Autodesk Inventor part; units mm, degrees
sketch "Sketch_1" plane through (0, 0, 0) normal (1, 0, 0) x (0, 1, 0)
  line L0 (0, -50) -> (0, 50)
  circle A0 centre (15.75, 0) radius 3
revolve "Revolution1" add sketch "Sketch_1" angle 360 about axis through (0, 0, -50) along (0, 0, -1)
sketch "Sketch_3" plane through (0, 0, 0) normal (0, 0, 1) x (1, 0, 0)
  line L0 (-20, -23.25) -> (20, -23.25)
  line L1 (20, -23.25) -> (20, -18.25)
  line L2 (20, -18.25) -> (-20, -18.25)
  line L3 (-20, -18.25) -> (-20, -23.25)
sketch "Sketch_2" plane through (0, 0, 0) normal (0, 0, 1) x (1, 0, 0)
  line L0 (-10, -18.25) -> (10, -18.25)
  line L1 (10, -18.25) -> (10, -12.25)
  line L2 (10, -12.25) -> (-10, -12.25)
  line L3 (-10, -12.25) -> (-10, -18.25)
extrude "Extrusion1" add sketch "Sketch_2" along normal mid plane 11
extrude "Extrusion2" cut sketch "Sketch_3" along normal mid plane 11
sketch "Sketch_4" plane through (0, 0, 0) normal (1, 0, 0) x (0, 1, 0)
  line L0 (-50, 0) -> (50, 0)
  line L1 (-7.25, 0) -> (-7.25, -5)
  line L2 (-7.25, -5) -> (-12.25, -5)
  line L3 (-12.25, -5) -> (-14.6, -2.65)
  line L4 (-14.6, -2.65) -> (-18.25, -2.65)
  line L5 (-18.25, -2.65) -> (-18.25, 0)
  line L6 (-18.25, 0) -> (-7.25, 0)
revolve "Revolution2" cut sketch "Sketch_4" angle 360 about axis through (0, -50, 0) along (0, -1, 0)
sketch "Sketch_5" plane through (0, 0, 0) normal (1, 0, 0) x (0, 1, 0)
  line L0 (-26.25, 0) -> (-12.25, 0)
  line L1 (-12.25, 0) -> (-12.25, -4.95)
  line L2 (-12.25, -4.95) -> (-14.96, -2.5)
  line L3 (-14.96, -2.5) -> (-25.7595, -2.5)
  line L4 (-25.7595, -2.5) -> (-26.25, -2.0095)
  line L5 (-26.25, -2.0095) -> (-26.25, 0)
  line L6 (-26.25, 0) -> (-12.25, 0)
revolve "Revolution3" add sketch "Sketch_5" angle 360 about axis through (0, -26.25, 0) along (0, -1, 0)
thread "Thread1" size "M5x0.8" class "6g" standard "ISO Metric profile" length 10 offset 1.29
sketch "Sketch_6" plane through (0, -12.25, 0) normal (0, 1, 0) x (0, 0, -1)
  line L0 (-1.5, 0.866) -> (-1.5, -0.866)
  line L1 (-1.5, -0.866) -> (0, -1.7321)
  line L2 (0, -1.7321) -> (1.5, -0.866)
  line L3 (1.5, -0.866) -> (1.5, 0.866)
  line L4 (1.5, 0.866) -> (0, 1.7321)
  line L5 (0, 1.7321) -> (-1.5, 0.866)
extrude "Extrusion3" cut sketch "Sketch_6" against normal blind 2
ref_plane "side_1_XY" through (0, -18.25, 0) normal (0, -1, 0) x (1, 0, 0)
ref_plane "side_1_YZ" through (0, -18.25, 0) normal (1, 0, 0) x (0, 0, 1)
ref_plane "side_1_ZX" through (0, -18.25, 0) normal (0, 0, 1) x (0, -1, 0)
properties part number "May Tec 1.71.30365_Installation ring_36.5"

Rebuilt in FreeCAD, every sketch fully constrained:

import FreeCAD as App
import Part
import Sketcher
Q = App.Units.Quantity

doc = App.newDocument("Part")
body = doc.addObject("PartDesign::Body", "Body")

# Sketch on YZ plane
sketch1 = body.newObject("Sketcher::SketchObject", "Sketch")
sketch1.AttachmentSupport = (doc.getObject("YZ_Plane"), [""])
sketch1.MapMode = "FlatFace"
sketch1.addGeometry(Part.Circle(App.Vector(15.75, 0, 0), App.Vector(0, 0, 1), 3), False)
sketch1.addConstraint(Sketcher.Constraint("PointOnObject", 0, 3, -1))
sketch1.addConstraint(Sketcher.Constraint("Diameter", 0, 6.0))
sketch1.addConstraint(Sketcher.Constraint("DistanceX", -1, 1, 0, 3, 15.75))
revolution = body.newObject("PartDesign::Revolution", "Revolution")
revolution.Profile = sketch1
revolution.ReferenceAxis = (sketch1, ["V_Axis"])
revolution.Angle = 360

# Sketch on XY plane
sketch2 = body.newObject("Sketcher::SketchObject", "Sketch001")
sketch2.AttachmentSupport = (doc.getObject("XY_Plane"), [""])
sketch2.MapMode = "FlatFace"
sketch2.addGeometry(Part.LineSegment(App.Vector(-10, -12.25, 0), App.Vector(-10, -18.25, 0)), False)
sketch2.addGeometry(Part.LineSegment(App.Vector(-10, -18.25, 0), App.Vector(10, -18.25, 0)), False)
sketch2.addGeometry(Part.LineSegment(App.Vector(10, -18.25, 0), App.Vector(10, -12.25, 0)), False)
sketch2.addGeometry(Part.LineSegment(App.Vector(10, -12.25, 0), App.Vector(-10, -12.25, 0)), False)
sketch2.addConstraint(Sketcher.Constraint("Coincident", 0, 2, 1, 1))
sketch2.addConstraint(Sketcher.Constraint("Coincident", 1, 2, 2, 1))
sketch2.addConstraint(Sketcher.Constraint("Coincident", 2, 2, 3, 1))
sketch2.addConstraint(Sketcher.Constraint("Coincident", 3, 2, 0, 1))
sketch2.addConstraint(Sketcher.Constraint("Vertical", 0))
sketch2.addConstraint(Sketcher.Constraint("Horizontal", 1))
sketch2.addConstraint(Sketcher.Constraint("Vertical", 2))
sketch2.addConstraint(Sketcher.Constraint("Horizontal", 3))
sketch2.addConstraint(Sketcher.Constraint("DistanceX", 1, 1, 1, 2, 20.0))
sketch2.addConstraint(Sketcher.Constraint("DistanceY", 0, 2, 0, 1, 6.0))
sketch2.addConstraint(Sketcher.Constraint("DistanceX", 0, 2, -1, 1, 10.0))
sketch2.addConstraint(Sketcher.Constraint("DistanceY", 0, 2, -1, 1, 18.25))
pad1 = body.newObject("PartDesign::Pad", "Pad")
pad1.Profile = sketch2
pad1.Length = 11
pad1.Midplane = True

# Sketch on XY plane
sketch3 = body.newObject("Sketcher::SketchObject", "Sketch002")
sketch3.AttachmentSupport = (doc.getObject("XY_Plane"), [""])
sketch3.MapMode = "FlatFace"
sketch3.addGeometry(Part.LineSegment(App.Vector(-20, -18.25, 0), App.Vector(-20, -23.25, 0)), False)
sketch3.addGeometry(Part.LineSegment(App.Vector(-20, -23.25, 0), App.Vector(20, -23.25, 0)), False)
sketch3.addGeometry(Part.LineSegment(App.Vector(20, -23.25, 0), App.Vector(20, -18.25, 0)), False)
sketch3.addGeometry(Part.LineSegment(App.Vector(20, -18.25, 0), App.Vector(-20, -18.25, 0)), False)
sketch3.addConstraint(Sketcher.Constraint("Coincident", 0, 2, 1, 1))
sketch3.addConstraint(Sketcher.Constraint("Coincident", 1, 2, 2, 1))
sketch3.addConstraint(Sketcher.Constraint("Coincident", 2, 2, 3, 1))
sketch3.addConstraint(Sketcher.Constraint("Coincident", 3, 2, 0, 1))
sketch3.addConstraint(Sketcher.Constraint("Vertical", 0))
sketch3.addConstraint(Sketcher.Constraint("Horizontal", 1))
sketch3.addConstraint(Sketcher.Constraint("Vertical", 2))
sketch3.addConstraint(Sketcher.Constraint("Horizontal", 3))
sketch3.addConstraint(Sketcher.Constraint("DistanceX", 1, 1, 1, 2, 40.0))
sketch3.addConstraint(Sketcher.Constraint("DistanceY", 0, 2, 0, 1, 5.0))
sketch3.addConstraint(Sketcher.Constraint("DistanceX", 0, 2, -1, 1, 20.0))
sketch3.addConstraint(Sketcher.Constraint("DistanceY", 0, 2, -1, 1, 23.25))
pocket1 = body.newObject("PartDesign::Pocket", "Pocket")
pocket1.Profile = sketch3
pocket1.Length = 11
pocket1.Midplane = True

# Sketch on YZ plane
sketch4 = body.newObject("Sketcher::SketchObject", "Sketch003")
sketch4.AttachmentSupport = (doc.getObject("YZ_Plane"), [""])
sketch4.MapMode = "FlatFace"
sketch4.addGeometry(Part.LineSegment(App.Vector(-7.25, 0, 0), App.Vector(-18.25, 0, 0)), False)
sketch4.addGeometry(Part.LineSegment(App.Vector(-18.25, 0, 0), App.Vector(-18.25, -2.65, 0)), False)
sketch4.addGeometry(Part.LineSegment(App.Vector(-18.25, -2.65, 0), App.Vector(-14.6, -2.65, 0)), False)
sketch4.addGeometry(Part.LineSegment(App.Vector(-14.6, -2.65, 0), App.Vector(-12.25, -5, 0)), False)
sketch4.addGeometry(Part.LineSegment(App.Vector(-12.25, -5, 0), App.Vector(-7.25, -5, 0)), False)
sketch4.addGeometry(Part.LineSegment(App.Vector(-7.25, -5, 0), App.Vector(-7.25, 0, 0)), False)
sketch4.addConstraint(Sketcher.Constraint("Coincident", 0, 2, 1, 1))
sketch4.addConstraint(Sketcher.Constraint("Coincident", 1, 2, 2, 1))
sketch4.addConstraint(Sketcher.Constraint("Coincident", 2, 2, 3, 1))
sketch4.addConstraint(Sketcher.Constraint("Coincident", 3, 2, 4, 1))
sketch4.addConstraint(Sketcher.Constraint("Coincident", 4, 2, 5, 1))
sketch4.addConstraint(Sketcher.Constraint("Coincident", 5, 2, 0, 1))
sketch4.addConstraint(Sketcher.Constraint("Horizontal", 0))
sketch4.addConstraint(Sketcher.Constraint("Vertical", 1))
sketch4.addConstraint(Sketcher.Constraint("Horizontal", 2))
sketch4.addConstraint(Sketcher.Constraint("Horizontal", 4))
sketch4.addConstraint(Sketcher.Constraint("Vertical", 5))
sketch4.addConstraint(Sketcher.Constraint("PointOnObject", 0, 2, -1))
sketch4.addConstraint(Sketcher.Constraint("Equal", 4, 5))
sketch4.addConstraint(Sketcher.Constraint("DistanceX", 0, 2, 0, 1, 11.0))
sketch4.addConstraint(Sketcher.Constraint("DistanceX", 4, 1, 4, 2, 5.0))
sketch4.addConstraint(Sketcher.Constraint("Angle", 3, Q("-45 deg")))
sketch4.addConstraint(Sketcher.Constraint("DistanceX", 2, 1, 2, 2, 3.65))
sketch4.addConstraint(Sketcher.Constraint("DistanceX", 2, 2, -1, 1, 14.6))
groove = body.newObject("PartDesign::Groove", "Groove")
groove.Profile = sketch4
groove.ReferenceAxis = (sketch4, ["H_Axis"])
groove.Angle = 360

# Sketch on YZ plane
sketch5 = body.newObject("Sketcher::SketchObject", "Sketch004")
sketch5.AttachmentSupport = (doc.getObject("YZ_Plane"), [""])
sketch5.MapMode = "FlatFace"
sketch5.addGeometry(Part.LineSegment(App.Vector(-12.25, 0, 0), App.Vector(-26.25, 0, 0)), False)
sketch5.addGeometry(Part.LineSegment(App.Vector(-26.25, 0, 0), App.Vector(-26.25, -2.0095, 0)), False)
sketch5.addGeometry(Part.LineSegment(App.Vector(-26.25, -2.0095, 0), App.Vector(-25.7595, -2.5, 0)), False)
sketch5.addGeometry(Part.LineSegment(App.Vector(-25.7595, -2.5, 0), App.Vector(-14.96, -2.5, 0)), False)
sketch5.addGeometry(Part.LineSegment(App.Vector(-14.96, -2.5, 0), App.Vector(-12.25, -4.95, 0)), False)
sketch5.addGeometry(Part.LineSegment(App.Vector(-12.25, -4.95, 0), App.Vector(-12.25, 0, 0)), False)
sketch5.addConstraint(Sketcher.Constraint("Coincident", 0, 2, 1, 1))
sketch5.addConstraint(Sketcher.Constraint("Coincident", 1, 2, 2, 1))
sketch5.addConstraint(Sketcher.Constraint("Coincident", 2, 2, 3, 1))
sketch5.addConstraint(Sketcher.Constraint("Coincident", 3, 2, 4, 1))
sketch5.addConstraint(Sketcher.Constraint("Coincident", 4, 2, 5, 1))
sketch5.addConstraint(Sketcher.Constraint("Coincident", 5, 2, 0, 1))
sketch5.addConstraint(Sketcher.Constraint("Horizontal", 0))
sketch5.addConstraint(Sketcher.Constraint("Vertical", 1))
sketch5.addConstraint(Sketcher.Constraint("Horizontal", 3))
sketch5.addConstraint(Sketcher.Constraint("Vertical", 5))
sketch5.addConstraint(Sketcher.Constraint("PointOnObject", 0, 2, -1))
sketch5.addConstraint(Sketcher.Constraint("DistanceX", 0, 2, 0, 1, 14.0))
sketch5.addConstraint(Sketcher.Constraint("Angle", 2, Q("-45 deg")))
sketch5.addConstraint(Sketcher.Constraint("DistanceY", 5, 1, 5, 2, 4.95))
sketch5.addConstraint(Sketcher.Constraint("DistanceY", 2, 2, -1, 1, 2.5))
sketch5.addConstraint(Sketcher.Constraint("DistanceX", 0, 2, -1, 1, 26.25))
sketch5.addConstraint(Sketcher.Constraint("DistanceX", 3, 2, -1, 1, 14.96))
sketch5.addConstraint(Sketcher.Constraint("DistanceX", 3, 1, 3, 2, 10.7995))
revolution2 = body.newObject("PartDesign::Revolution", "Revolution001")
revolution2.Profile = sketch5
revolution2.ReferenceAxis = (sketch5, ["H_Axis"])
revolution2.Angle = 360

# Sketch on XZ plane
sketch6 = body.newObject("Sketcher::SketchObject", "Sketch005")
sketch6.AttachmentSupport = (doc.getObject("XZ_Plane"), [""])
sketch6.MapMode = "FlatFace"
sketch6.AttachmentOffset = App.Placement(App.Vector(0, 0, 12.25), App.Rotation())
sketch6.addGeometry(Part.LineSegment(App.Vector(-1.7321, 0, 0), App.Vector(-0.866, 1.5, 0)), False)
sketch6.addGeometry(Part.LineSegment(App.Vector(-0.866, 1.5, 0), App.Vector(0.866, 1.5, 0)), False)
sketch6.addGeometry(Part.LineSegment(App.Vector(0.866, 1.5, 0), App.Vector(1.7321, 0, 0)), False)
sketch6.addGeometry(Part.LineSegment(App.Vector(1.7321, 0, 0), App.Vector(0.866, -1.5, 0)), False)
sketch6.addGeometry(Part.LineSegment(App.Vector(0.866, -1.5, 0), App.Vector(-0.866, -1.5, 0)), False)
sketch6.addGeometry(Part.LineSegment(App.Vector(-0.866, -1.5, 0), App.Vector(-1.7321, 0, 0)), False)
sketch6.addConstraint(Sketcher.Constraint("Coincident", 0, 2, 1, 1))
sketch6.addConstraint(Sketcher.Constraint("Coincident", 1, 2, 2, 1))
sketch6.addConstraint(Sketcher.Constraint("Coincident", 2, 2, 3, 1))
sketch6.addConstraint(Sketcher.Constraint("Coincident", 3, 2, 4, 1))
sketch6.addConstraint(Sketcher.Constraint("Coincident", 4, 2, 5, 1))
sketch6.addConstraint(Sketcher.Constraint("Coincident", 5, 2, 0, 1))
sketch6.addConstraint(Sketcher.Constraint("Horizontal", 1))
sketch6.addConstraint(Sketcher.Constraint("Horizontal", 4))
sketch6.addConstraint(Sketcher.Constraint("Symmetric", 0, 2, 3, 2, -1, 1))
sketch6.addConstraint(Sketcher.Constraint("Symmetric", 2, 2, 5, 2, -1, 1))
sketch6.addConstraint(Sketcher.Constraint("PointOnObject", 2, 2, -1))
sketch6.addConstraint(Sketcher.Constraint("Parallel", 2, 5))
sketch6.addConstraint(Sketcher.Constraint("Vertical", 1, 2, 3, 2))
sketch6.addConstraint(Sketcher.Constraint("DistanceY", 3, 2, 1, 2, 3.0))
sketch6.addConstraint(Sketcher.Constraint("DistanceX", 1, 1, 1, 2, 1.732))
sketch6.addConstraint(Sketcher.Constraint("Distance", 0, 1.732))
pocket2 = body.newObject("PartDesign::Pocket", "Pocket001")
pocket2.Profile = sketch6
pocket2.Length = 2
pocket2.Reversed = True

doc.recompute()
